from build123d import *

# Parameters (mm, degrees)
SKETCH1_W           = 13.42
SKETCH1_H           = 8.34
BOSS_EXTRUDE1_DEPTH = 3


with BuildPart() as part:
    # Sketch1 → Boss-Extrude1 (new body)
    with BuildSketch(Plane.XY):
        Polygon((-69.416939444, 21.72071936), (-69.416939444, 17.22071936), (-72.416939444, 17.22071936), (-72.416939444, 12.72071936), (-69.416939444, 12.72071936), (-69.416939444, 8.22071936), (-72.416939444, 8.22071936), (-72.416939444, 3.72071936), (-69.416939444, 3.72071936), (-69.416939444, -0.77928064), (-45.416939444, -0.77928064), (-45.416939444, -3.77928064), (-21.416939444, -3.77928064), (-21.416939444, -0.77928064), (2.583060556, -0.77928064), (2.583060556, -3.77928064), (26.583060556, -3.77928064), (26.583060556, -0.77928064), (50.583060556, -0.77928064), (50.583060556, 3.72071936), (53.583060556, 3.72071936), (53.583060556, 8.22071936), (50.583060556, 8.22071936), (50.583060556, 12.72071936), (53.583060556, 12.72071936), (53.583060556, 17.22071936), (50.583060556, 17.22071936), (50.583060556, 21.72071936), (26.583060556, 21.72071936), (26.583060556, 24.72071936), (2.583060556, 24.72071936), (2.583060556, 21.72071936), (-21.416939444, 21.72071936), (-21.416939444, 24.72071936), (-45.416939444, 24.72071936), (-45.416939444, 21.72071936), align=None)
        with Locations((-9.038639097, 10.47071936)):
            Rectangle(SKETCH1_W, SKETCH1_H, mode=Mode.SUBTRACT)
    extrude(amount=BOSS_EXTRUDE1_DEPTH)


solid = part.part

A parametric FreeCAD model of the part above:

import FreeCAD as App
import Part
import Sketcher


def add_polygon(sketch, points):
    """Adds a closed chain of lines whose ends are joined by coincident constraints."""
    first, n = sketch.GeometryCount, len(points)
    for a, b in zip(points, points[1:] + points[:1]):
        sketch.addGeometry(Part.LineSegment(App.Vector(*a, 0), App.Vector(*b, 0)), False)
    for i in range(n):
        sketch.addConstraint(Sketcher.Constraint("Coincident", first + i, 2, first + (i + 1) % n, 1))

doc = App.newDocument("Part")
body = doc.addObject("PartDesign::Body", "Body")

# Sketch on XY plane
sketch1 = doc.addObject("Sketcher::SketchObject", "Sketch")
body.addObject(sketch1)
sketch1.AttachmentSupport = (doc.XY_Plane, [""])
sketch1.MapMode = "FlatFace"
add_polygon(sketch1, [(-69.416939, 21.720719), (-69.416939, 17.220719), (-72.416939, 17.220719), (-72.416939, 12.720719), (-69.416939, 12.720719), (-69.416939, 8.220719), (-72.416939, 8.220719), (-72.416939, 3.720719), (-69.416939, 3.720719), (-69.416939, -0.779281), (-45.416939, -0.779281), (-45.416939, -3.779281), (-21.416939, -3.779281), (-21.416939, -0.779281), (2.583061, -0.779281), (2.583061, -3.779281), (26.583061, -3.779281), (26.583061, -0.779281), (50.583061, -0.779281), (50.583061, 3.720719), (53.583061, 3.720719), (53.583061, 8.220719), (50.583061, 8.220719), (50.583061, 12.720719), (53.583061, 12.720719), (53.583061, 17.220719), (50.583061, 17.220719), (50.583061, 21.720719), (26.583061, 21.720719), (26.583061, 24.720719), (2.583061, 24.720719), (2.583061, 21.720719), (-21.416939, 21.720719), (-21.416939, 24.720719), (-45.416939, 24.720719), (-45.416939, 21.720719)])  # lines 0-35
add_polygon(sketch1, [(-2.328639, 6.300719), (-15.748639, 6.300719), (-15.748639, 14.640719), (-2.328639, 14.640719)])  # lines 36-39
sketch1.addConstraint(Sketcher.Constraint("Vertical", 0))
sketch1.addConstraint(Sketcher.Constraint("Horizontal", 1))
sketch1.addConstraint(Sketcher.Constraint("Vertical", 2))
sketch1.addConstraint(Sketcher.Constraint("Horizontal", 3))
sketch1.addConstraint(Sketcher.Constraint("Vertical", 4))
sketch1.addConstraint(Sketcher.Constraint("Horizontal", 5))
sketch1.addConstraint(Sketcher.Constraint("Vertical", 6))
sketch1.addConstraint(Sketcher.Constraint("Horizontal", 7))
sketch1.addConstraint(Sketcher.Constraint("Vertical", 8))
sketch1.addConstraint(Sketcher.Constraint("Horizontal", 9))
sketch1.addConstraint(Sketcher.Constraint("Vertical", 10))
sketch1.addConstraint(Sketcher.Constraint("Horizontal", 11))
sketch1.addConstraint(Sketcher.Constraint("Vertical", 12))
sketch1.addConstraint(Sketcher.Constraint("Horizontal", 13))
sketch1.addConstraint(Sketcher.Constraint("Vertical", 14))
sketch1.addConstraint(Sketcher.Constraint("Horizontal", 15))
sketch1.addConstraint(Sketcher.Constraint("Vertical", 16))
sketch1.addConstraint(Sketcher.Constraint("Horizontal", 17))
sketch1.addConstraint(Sketcher.Constraint("Vertical", 18))
sketch1.addConstraint(Sketcher.Constraint("Horizontal", 19))
sketch1.addConstraint(Sketcher.Constraint("Vertical", 20))
sketch1.addConstraint(Sketcher.Constraint("Horizontal", 21))
sketch1.addConstraint(Sketcher.Constraint("Vertical", 22))
sketch1.addConstraint(Sketcher.Constraint("Horizontal", 23))
sketch1.addConstraint(Sketcher.Constraint("Vertical", 24))
sketch1.addConstraint(Sketcher.Constraint("Horizontal", 25))
sketch1.addConstraint(Sketcher.Constraint("Vertical", 26))
sketch1.addConstraint(Sketcher.Constraint("Horizontal", 27))
sketch1.addConstraint(Sketcher.Constraint("Vertical", 28))
sketch1.addConstraint(Sketcher.Constraint("Horizontal", 29))
sketch1.addConstraint(Sketcher.Constraint("Vertical", 30))
sketch1.addConstraint(Sketcher.Constraint("Horizontal", 31))
sketch1.addConstraint(Sketcher.Constraint("Vertical", 32))
sketch1.addConstraint(Sketcher.Constraint("Horizontal", 33))
sketch1.addConstraint(Sketcher.Constraint("Vertical", 34))
sketch1.addConstraint(Sketcher.Constraint("Horizontal", 35))
sketch1.addConstraint(Sketcher.Constraint("Horizontal", 36))
sketch1.addConstraint(Sketcher.Constraint("Vertical", 37))
sketch1.addConstraint(Sketcher.Constraint("Horizontal", 38))
sketch1.addConstraint(Sketcher.Constraint("Vertical", 39))
sketch1.addConstraint(Sketcher.Constraint("Horizontal", 9, 2, 12, 2))
sketch1.addConstraint(Sketcher.Constraint("Horizontal", 11, 2, 14, 2))
sketch1.addConstraint(Sketcher.Constraint("Horizontal", 13, 2, 16, 2))
sketch1.addConstraint(Sketcher.Constraint("Horizontal", 7, 2, 18, 2))
sketch1.addConstraint(Sketcher.Constraint("Horizontal", 5, 2, 20, 2))
sketch1.addConstraint(Sketcher.Constraint("Horizontal", 3, 2, 22, 2))
sketch1.addConstraint(Sketcher.Constraint("Horizontal", 1, 2, 24, 2))
sketch1.addConstraint(Sketcher.Constraint("Horizontal", 27, 2, 30, 2))
sketch1.addConstraint(Sketcher.Constraint("Horizontal", 29, 2, 32, 2))
sketch1.addConstraint(Sketcher.Constraint("Horizontal", 31, 2, 34, 2))
sketch1.addConstraint(Sketcher.Constraint("Vertical", 0, 2, 3, 2))
sketch1.addConstraint(Sketcher.Constraint("Vertical", 2, 2, 5, 2))
sketch1.addConstraint(Sketcher.Constraint("Vertical", 4, 2, 7, 2))
sketch1.addConstraint(Sketcher.Constraint("Vertical", 18, 2, 21, 2))
sketch1.addConstraint(Sketcher.Constraint("Vertical", 20, 2, 23, 2))
sketch1.addConstraint(Sketcher.Constraint("Vertical", 22, 2, 25, 2))
sketch1.addConstraint(Sketcher.Constraint("Vertical", 16, 2, 27, 2))
sketch1.addConstraint(Sketcher.Constraint("Vertical", 14, 2, 29, 2))
sketch1.addConstraint(Sketcher.Constraint("Vertical", 12, 2, 31, 2))
sketch1.addConstraint(Sketcher.Constraint("Vertical", 10, 2, 33, 2))
sketch1.addConstraint(Sketcher.Constraint("Equal", 9, 11))
sketch1.addConstraint(Sketcher.Constraint("Equal", 11, 13))
sketch1.addConstraint(Sketcher.Constraint("Equal", 13, 15))
sketch1.addConstraint(Sketcher.Constraint("Equal", 15, 17))
sketch1.addConstraint(Sketcher.Constraint("Equal", 7, 19))
sketch1.addConstraint(Sketcher.Constraint("Equal", 0, 2))
sketch1.addConstraint(Sketcher.Constraint("Equal", 2, 4))
sketch1.addConstraint(Sketcher.Constraint("Equal", 4, 6))
sketch1.addConstraint(Sketcher.Constraint("Equal", 6, 8))
sketch1.addConstraint(Sketcher.Constraint("Equal", 25, 10))
sketch1.addConstraint(Sketcher.Constraint("Equal", 16, 28))
sketch1.addConstraint(Sketcher.Constraint("DistanceX", 1, 2, 1, 1, 3.0))
sketch1.addConstraint(Sketcher.Constraint("DistanceX", 9, 1, 9, 2, 24.0))
sketch1.addConstraint(Sketcher.Constraint("DistanceY", 0, 2, 0, 1, 4.5))
sketch1.addConstraint(Sketcher.Constraint("DistanceX", 36, 2, 36, 1, 13.42))
sketch1.addConstraint(Sketcher.Constraint("DistanceY", 37, 1, 37, 2, 8.34))
sketch1.addConstraint(Sketcher.Constraint("DistanceY", 12, 2, 36, 2, 7.08))
sketch1.addConstraint(Sketcher.Constraint("DistanceX", 12, 2, 36, 2, 5.6683))
sketch1.addConstraint(Sketcher.Constraint("DistanceX", 0, 2, -1, 1, 69.416939))
sketch1.addConstraint(Sketcher.Constraint("DistanceY", -1, 1, 0, 2, 17.220719))
pad1 = doc.addObject("PartDesign::Pad", "Pad")
body.addObject(pad1)
pad1.Profile = sketch1
pad1.Length = 3

doc.recompute()
